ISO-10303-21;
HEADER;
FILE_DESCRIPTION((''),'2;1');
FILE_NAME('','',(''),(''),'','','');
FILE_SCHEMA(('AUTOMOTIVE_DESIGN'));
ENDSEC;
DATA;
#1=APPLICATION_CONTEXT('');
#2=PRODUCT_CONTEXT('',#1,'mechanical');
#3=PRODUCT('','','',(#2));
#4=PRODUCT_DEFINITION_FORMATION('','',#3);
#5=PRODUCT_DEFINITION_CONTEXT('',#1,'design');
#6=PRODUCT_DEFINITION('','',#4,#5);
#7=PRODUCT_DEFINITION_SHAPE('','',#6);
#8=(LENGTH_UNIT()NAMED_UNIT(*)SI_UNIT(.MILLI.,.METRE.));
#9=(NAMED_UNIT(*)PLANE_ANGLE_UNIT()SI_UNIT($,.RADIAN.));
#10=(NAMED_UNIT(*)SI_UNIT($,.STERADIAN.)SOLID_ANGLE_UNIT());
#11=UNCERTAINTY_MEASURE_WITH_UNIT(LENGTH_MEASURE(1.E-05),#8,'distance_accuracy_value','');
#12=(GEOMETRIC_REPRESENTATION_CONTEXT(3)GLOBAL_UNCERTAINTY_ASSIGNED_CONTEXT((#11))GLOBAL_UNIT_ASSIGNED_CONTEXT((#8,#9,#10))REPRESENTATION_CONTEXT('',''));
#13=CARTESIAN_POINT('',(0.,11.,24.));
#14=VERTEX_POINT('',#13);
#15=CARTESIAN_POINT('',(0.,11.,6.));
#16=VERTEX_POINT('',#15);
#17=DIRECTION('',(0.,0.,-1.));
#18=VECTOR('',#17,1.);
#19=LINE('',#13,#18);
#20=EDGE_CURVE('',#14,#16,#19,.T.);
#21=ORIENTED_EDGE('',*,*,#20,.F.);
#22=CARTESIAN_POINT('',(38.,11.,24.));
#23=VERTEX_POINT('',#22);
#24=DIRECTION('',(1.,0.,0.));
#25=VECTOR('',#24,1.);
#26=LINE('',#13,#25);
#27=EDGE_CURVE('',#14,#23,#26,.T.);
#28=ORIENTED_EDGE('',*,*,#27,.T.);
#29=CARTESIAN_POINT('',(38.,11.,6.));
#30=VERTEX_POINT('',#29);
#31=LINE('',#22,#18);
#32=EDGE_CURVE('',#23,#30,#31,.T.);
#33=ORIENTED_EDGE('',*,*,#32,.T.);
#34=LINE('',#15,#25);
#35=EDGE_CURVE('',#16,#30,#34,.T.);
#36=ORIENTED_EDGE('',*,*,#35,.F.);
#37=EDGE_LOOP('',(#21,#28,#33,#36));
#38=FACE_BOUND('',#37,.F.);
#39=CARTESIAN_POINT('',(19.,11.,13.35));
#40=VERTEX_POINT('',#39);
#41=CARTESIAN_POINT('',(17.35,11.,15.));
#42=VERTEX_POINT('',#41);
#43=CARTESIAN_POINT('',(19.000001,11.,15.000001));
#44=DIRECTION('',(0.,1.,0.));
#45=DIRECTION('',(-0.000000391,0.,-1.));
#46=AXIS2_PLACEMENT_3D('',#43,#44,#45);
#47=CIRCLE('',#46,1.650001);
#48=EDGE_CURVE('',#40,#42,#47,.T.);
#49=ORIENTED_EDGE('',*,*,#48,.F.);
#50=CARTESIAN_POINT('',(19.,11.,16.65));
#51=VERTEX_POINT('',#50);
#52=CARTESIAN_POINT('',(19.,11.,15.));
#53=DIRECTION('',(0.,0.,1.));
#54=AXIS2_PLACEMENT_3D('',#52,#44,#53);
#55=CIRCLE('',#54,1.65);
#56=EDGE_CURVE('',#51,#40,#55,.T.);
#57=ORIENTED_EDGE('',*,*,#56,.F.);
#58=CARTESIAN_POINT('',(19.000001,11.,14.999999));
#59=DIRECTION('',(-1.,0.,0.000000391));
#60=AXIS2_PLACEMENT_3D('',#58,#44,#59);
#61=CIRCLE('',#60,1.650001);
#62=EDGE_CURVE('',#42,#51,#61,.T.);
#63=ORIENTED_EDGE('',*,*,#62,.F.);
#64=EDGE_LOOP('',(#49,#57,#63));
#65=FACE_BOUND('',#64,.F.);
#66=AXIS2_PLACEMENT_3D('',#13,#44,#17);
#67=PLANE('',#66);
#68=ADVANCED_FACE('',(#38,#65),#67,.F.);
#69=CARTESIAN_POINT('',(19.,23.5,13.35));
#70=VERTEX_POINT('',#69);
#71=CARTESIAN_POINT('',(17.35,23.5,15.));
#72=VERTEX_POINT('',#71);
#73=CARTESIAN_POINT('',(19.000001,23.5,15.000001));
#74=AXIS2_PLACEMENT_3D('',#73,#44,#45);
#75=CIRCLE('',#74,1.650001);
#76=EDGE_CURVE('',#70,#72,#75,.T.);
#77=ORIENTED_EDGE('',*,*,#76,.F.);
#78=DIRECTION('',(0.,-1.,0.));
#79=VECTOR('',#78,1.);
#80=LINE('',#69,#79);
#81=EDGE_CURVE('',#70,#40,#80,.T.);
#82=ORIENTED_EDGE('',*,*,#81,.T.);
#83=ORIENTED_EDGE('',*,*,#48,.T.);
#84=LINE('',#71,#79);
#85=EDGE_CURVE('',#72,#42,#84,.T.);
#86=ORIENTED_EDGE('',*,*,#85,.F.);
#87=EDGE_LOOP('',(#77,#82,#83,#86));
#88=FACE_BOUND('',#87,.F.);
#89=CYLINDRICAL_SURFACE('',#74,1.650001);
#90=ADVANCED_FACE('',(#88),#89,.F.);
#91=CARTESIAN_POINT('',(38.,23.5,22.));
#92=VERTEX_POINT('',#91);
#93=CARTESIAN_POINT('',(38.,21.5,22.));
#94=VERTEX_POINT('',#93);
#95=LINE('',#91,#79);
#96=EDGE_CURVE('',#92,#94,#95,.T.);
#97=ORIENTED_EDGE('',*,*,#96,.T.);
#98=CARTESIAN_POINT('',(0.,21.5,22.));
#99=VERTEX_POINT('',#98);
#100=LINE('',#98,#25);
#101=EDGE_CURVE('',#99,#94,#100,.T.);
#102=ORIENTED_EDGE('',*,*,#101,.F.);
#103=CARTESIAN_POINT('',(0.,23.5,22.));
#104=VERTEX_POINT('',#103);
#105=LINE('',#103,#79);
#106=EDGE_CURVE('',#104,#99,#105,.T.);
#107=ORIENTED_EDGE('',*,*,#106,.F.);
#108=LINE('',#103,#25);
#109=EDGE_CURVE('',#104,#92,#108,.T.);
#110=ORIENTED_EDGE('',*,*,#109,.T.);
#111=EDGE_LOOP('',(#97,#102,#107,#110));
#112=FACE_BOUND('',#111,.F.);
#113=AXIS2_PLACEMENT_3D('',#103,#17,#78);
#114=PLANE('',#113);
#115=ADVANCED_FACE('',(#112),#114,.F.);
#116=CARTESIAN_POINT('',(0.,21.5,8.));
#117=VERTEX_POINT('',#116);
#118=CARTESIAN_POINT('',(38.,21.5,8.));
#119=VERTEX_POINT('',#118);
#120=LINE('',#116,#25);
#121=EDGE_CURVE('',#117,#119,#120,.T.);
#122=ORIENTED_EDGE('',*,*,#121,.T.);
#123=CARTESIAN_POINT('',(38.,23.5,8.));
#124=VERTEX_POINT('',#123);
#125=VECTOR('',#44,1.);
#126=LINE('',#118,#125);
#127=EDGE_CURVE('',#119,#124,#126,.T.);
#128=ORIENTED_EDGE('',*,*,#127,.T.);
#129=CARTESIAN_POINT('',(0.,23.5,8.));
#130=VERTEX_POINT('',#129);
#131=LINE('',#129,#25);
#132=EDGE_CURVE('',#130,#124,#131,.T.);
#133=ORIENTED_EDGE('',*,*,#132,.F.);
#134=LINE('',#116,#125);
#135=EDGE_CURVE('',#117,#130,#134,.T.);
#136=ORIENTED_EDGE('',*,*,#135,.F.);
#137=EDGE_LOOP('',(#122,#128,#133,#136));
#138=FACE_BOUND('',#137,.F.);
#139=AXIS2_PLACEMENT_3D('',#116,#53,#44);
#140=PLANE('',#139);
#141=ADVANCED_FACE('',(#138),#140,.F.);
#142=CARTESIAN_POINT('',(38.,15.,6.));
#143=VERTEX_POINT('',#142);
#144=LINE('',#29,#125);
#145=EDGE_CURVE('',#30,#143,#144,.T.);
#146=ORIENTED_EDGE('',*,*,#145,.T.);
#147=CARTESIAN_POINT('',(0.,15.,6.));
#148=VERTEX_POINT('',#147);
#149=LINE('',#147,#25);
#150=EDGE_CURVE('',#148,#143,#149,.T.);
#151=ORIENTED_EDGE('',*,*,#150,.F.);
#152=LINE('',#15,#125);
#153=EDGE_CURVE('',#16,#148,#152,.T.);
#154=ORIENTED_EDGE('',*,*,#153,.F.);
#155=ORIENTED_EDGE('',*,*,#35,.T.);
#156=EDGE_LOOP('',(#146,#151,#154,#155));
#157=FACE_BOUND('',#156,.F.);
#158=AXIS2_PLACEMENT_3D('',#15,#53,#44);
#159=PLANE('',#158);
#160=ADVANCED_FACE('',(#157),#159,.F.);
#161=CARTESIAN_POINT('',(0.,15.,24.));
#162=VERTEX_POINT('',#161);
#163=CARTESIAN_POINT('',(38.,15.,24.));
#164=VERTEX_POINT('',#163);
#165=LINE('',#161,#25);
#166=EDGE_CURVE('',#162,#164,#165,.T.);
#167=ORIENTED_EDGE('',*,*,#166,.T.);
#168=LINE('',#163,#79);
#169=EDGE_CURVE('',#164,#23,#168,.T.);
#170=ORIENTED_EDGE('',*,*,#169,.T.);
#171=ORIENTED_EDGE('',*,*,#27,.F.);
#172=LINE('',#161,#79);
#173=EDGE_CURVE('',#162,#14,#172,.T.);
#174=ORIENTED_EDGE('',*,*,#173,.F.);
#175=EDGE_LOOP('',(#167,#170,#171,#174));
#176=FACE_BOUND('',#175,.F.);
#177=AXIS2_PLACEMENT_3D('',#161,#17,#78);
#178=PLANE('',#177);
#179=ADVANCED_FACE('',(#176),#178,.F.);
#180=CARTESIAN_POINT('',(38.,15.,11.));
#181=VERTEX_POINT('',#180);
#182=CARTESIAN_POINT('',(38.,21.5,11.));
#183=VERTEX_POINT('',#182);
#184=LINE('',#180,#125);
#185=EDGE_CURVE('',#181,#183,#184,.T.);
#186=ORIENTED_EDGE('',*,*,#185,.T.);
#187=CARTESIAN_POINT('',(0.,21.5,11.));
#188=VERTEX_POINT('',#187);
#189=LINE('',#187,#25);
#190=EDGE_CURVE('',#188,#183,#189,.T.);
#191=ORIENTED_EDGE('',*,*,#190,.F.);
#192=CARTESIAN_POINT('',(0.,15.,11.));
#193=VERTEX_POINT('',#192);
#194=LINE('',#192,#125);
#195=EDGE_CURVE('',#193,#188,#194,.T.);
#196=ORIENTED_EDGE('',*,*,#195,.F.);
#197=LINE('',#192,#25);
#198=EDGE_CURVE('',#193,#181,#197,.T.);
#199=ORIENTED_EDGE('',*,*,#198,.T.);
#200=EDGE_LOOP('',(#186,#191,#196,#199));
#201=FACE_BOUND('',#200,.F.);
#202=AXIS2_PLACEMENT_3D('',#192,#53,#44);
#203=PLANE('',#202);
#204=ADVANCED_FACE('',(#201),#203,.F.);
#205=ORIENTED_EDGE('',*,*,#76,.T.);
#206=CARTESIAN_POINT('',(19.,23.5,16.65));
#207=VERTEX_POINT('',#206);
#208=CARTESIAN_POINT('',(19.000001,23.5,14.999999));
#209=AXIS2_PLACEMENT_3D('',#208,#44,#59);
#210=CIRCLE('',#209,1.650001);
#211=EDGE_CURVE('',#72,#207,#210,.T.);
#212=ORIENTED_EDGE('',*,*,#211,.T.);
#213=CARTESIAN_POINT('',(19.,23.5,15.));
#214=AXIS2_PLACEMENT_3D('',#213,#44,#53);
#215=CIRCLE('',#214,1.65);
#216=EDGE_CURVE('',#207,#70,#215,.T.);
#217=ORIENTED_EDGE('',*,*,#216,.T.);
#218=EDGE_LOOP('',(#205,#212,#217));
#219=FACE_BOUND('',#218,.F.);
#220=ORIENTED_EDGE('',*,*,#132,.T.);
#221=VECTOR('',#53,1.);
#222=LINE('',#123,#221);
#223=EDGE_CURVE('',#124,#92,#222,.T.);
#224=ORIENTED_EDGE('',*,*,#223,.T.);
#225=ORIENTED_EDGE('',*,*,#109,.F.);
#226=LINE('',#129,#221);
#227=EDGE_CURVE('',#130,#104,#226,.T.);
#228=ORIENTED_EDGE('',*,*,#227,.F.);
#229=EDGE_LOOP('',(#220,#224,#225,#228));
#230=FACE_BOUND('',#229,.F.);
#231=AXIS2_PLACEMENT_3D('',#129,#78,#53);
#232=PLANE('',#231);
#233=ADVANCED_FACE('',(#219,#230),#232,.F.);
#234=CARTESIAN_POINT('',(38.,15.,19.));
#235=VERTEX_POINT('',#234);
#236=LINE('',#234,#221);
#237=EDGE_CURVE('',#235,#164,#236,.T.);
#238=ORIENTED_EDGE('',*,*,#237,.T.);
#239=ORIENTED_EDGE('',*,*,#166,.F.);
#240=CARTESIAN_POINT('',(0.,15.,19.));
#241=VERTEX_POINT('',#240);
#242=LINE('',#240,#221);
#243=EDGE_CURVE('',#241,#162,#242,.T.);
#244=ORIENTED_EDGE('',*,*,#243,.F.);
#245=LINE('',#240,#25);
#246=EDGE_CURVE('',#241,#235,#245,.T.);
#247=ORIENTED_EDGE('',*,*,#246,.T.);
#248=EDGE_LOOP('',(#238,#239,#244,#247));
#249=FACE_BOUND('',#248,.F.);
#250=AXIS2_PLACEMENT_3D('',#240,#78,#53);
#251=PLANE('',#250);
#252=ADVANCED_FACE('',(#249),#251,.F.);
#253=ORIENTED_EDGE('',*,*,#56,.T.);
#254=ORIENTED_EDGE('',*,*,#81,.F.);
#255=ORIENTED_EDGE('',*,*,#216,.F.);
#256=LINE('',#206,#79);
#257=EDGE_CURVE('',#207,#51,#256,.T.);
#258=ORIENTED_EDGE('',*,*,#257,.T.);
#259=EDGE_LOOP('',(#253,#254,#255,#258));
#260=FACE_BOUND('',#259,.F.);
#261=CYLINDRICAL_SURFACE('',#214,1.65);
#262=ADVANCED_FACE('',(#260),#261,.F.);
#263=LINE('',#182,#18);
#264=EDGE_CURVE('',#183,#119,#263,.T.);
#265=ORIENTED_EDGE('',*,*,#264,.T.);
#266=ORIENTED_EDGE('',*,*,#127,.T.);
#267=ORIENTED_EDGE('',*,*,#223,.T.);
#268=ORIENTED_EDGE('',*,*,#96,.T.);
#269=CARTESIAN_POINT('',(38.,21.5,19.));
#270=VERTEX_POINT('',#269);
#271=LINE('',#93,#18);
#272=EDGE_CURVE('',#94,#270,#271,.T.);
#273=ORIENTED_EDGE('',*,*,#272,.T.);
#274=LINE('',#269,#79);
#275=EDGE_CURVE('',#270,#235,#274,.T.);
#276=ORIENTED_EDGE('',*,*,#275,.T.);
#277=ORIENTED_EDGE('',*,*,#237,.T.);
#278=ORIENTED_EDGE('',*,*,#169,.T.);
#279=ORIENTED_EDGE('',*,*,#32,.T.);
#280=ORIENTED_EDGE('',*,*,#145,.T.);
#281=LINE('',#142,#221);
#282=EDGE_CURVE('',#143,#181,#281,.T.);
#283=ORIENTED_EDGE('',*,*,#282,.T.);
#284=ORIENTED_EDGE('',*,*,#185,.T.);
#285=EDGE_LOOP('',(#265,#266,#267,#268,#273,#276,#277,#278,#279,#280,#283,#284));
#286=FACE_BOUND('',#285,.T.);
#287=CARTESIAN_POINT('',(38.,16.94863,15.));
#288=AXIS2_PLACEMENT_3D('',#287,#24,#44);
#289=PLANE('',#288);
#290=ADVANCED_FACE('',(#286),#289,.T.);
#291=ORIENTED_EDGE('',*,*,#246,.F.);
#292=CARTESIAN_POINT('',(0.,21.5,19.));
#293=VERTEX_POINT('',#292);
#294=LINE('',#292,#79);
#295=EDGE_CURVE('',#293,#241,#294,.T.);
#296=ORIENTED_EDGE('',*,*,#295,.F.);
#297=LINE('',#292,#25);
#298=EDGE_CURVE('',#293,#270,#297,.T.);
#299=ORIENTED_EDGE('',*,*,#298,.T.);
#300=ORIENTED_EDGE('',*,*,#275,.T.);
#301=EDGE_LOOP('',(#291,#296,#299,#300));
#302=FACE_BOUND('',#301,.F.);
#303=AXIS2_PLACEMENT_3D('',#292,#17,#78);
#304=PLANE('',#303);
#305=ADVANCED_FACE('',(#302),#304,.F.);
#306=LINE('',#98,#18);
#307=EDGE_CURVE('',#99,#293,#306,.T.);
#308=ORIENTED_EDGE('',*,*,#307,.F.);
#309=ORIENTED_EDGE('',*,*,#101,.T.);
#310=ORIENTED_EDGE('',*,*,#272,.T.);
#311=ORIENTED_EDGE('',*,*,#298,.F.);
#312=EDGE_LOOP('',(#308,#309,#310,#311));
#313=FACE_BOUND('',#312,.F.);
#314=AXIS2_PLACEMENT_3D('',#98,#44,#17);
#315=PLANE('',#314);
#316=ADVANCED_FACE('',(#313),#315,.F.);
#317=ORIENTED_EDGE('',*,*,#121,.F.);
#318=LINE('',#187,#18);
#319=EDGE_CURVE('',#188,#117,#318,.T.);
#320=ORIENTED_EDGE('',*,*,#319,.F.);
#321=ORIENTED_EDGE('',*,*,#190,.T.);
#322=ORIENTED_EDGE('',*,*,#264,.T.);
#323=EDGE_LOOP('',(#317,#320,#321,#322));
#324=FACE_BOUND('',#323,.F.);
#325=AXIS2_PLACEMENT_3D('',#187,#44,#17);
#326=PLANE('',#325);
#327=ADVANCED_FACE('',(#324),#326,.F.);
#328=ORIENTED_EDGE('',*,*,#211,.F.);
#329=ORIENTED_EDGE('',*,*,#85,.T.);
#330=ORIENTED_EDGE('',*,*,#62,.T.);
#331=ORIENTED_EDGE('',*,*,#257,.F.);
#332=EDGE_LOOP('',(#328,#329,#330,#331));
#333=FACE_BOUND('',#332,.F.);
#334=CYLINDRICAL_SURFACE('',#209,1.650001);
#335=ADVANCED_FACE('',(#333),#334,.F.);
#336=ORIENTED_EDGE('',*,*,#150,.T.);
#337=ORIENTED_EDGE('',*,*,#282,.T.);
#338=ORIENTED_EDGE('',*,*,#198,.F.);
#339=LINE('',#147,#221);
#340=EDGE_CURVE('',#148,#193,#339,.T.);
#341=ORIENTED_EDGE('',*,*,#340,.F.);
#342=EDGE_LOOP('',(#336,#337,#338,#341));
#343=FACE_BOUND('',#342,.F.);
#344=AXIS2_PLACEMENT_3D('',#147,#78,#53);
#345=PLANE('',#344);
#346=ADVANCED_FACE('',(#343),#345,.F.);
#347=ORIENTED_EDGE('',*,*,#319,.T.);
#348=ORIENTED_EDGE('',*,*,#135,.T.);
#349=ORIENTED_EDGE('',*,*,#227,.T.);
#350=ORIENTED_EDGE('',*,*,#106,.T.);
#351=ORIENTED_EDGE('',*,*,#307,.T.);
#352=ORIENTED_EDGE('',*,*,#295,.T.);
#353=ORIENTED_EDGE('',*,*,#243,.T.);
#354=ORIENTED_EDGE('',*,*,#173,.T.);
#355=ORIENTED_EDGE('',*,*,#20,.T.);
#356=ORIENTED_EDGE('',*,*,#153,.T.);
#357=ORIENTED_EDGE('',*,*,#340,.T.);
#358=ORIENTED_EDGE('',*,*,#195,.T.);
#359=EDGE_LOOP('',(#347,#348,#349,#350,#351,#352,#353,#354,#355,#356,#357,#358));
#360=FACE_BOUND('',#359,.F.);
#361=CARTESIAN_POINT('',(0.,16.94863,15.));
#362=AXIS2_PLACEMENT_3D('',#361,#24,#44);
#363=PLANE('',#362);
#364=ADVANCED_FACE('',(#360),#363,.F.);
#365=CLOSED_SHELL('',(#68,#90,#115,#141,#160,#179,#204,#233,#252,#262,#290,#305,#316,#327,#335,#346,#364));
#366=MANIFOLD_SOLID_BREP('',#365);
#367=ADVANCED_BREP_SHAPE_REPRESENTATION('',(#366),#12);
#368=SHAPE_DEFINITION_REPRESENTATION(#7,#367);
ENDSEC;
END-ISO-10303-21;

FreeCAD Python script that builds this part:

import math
import FreeCAD as App
import Part
import Sketcher
from FreeCAD import Vector
Q = App.Units.Quantity

doc = App.newDocument("Part")
params = doc.addObject("Spreadsheet::Sheet", "Params")
for row, (alias, value) in enumerate([
    ("sketch1_width", "4 mm"),
    ("sketch1_width2", "2 mm"),
    ("sketch1_height", "5 mm"),
    ("sketch1_height2", "18 mm"),
    ("sketch1_height3", "3 mm"),
    ("pad1_length", "38 mm"),
    ("sketch2_radius", "1.650001 mm"),
    ("pocket1_length", "25 mm"),
], start=1):
    params.set(f"A{row}", alias)
    params.set(f"B{row}", "=" + value)
    params.setAlias(f"B{row}", alias)

body = doc.addObject("PartDesign::Body", "Body")

sketch1 = body.newObject("Sketcher::SketchObject", "Sketch")
sketch1.AttachmentSupport = (doc.getObject("YZ_Plane"), [""])
sketch1.MapMode = "FlatFace"
sketch1.addGeometry([
    Part.LineSegment(Vector(15, 19, 0), Vector(15, 24, 0)),
    Part.LineSegment(Vector(15, 24, 0), Vector(11, 24, 0)),
    Part.LineSegment(Vector(11, 24, 0), Vector(11, 6, 0)),
    Part.LineSegment(Vector(11, 6, 0), Vector(15, 6, 0)),
    Part.LineSegment(Vector(15, 6, 0), Vector(15, 11, 0)),
    Part.LineSegment(Vector(15, 11, 0), Vector(21.5, 11, 0)),
    Part.LineSegment(Vector(21.5, 11, 0), Vector(21.5, 8, 0)),
    Part.LineSegment(Vector(21.5, 8, 0), Vector(23.5, 8, 0)),
    Part.LineSegment(Vector(23.5, 8, 0), Vector(23.5, 22, 0)),
    Part.LineSegment(Vector(23.5, 22, 0), Vector(21.5, 22, 0)),
    Part.LineSegment(Vector(21.5, 22, 0), Vector(21.5, 19, 0)),
    Part.LineSegment(Vector(21.5, 19, 0), Vector(15, 19, 0)),
], False)
sketch1.addConstraint([
    Sketcher.Constraint("Coincident", 0, 2, 1, 1),
    Sketcher.Constraint("Coincident", 1, 2, 2, 1),
    Sketcher.Constraint("Coincident", 2, 2, 3, 1),
    Sketcher.Constraint("Coincident", 3, 2, 4, 1),
    Sketcher.Constraint("Coincident", 4, 2, 5, 1),
    Sketcher.Constraint("Coincident", 5, 2, 6, 1),
    Sketcher.Constraint("Coincident", 6, 2, 7, 1),
    Sketcher.Constraint("Coincident", 7, 2, 8, 1),
    Sketcher.Constraint("Coincident", 8, 2, 9, 1),
    Sketcher.Constraint("Coincident", 9, 2, 10, 1),
    Sketcher.Constraint("Coincident", 10, 2, 11, 1),
    Sketcher.Constraint("Coincident", 11, 2, 0, 1),
    Sketcher.Constraint("Vertical", 0),
    Sketcher.Constraint("Horizontal", 1),
    Sketcher.Constraint("Vertical", 2),
    Sketcher.Constraint("Horizontal", 3),
    Sketcher.Constraint("Vertical", 4),
    Sketcher.Constraint("Horizontal", 5),
    Sketcher.Constraint("Vertical", 6),
    Sketcher.Constraint("Horizontal", 7),
    Sketcher.Constraint("Vertical", 8),
    Sketcher.Constraint("Horizontal", 9),
    Sketcher.Constraint("Vertical", 10),
    Sketcher.Constraint("Horizontal", 11),
    Sketcher.Constraint("Vertical", 0, 2, 3, 2),
    Sketcher.Constraint("Vertical", 6, 2, 9, 2),
    Sketcher.Constraint("Equal", 0, 4),
    Sketcher.Constraint("Equal", 6, 10),
    Sketcher.Constraint("DistanceX", 1, 2, 1, 1, Q("4 mm")),
    Sketcher.Constraint("DistanceX", 7, 1, 7, 2, Q("2 mm")),
    Sketcher.Constraint("DistanceY", 0, 1, 0, 2, Q("5 mm")),
    Sketcher.Constraint("DistanceY", 2, 2, 2, 1, Q("18 mm")),
    Sketcher.Constraint("DistanceY", 6, 2, 6, 1, Q("3 mm")),
    Sketcher.Constraint("DistanceX", 5, 1, 5, 2, Q("6.5 mm")),
    Sketcher.Constraint("DistanceX", -1, 1, 0, 2, Q("15 mm")),
    Sketcher.Constraint("DistanceY", -1, 1, 0, 2, Q("24 mm")),
])
sketch1.setExpression("Constraints[28]", "Params.sketch1_width")
sketch1.setExpression("Constraints[29]", "Params.sketch1_width2")
sketch1.setExpression("Constraints[30]", "Params.sketch1_height")
sketch1.setExpression("Constraints[31]", "Params.sketch1_height2")
sketch1.setExpression("Constraints[32]", "Params.sketch1_height3")
pad1 = body.newObject("PartDesign::Pad", "Pad")
pad1.Profile = sketch1
pad1.setExpression("Length", "Params.pad1_length")

sketch2 = body.newObject("Sketcher::SketchObject", "Sketch001")
sketch2.AttachmentSupport = (doc.getObject("XZ_Plane"), [""])
sketch2.MapMode = "FlatFace"
sketch2.AttachmentOffset = App.Placement(Vector(0, 0, -23.5), App.Rotation())
sketch2.addGeometry([
    Part.ArcOfCircle(Part.Circle(Vector(19.000001, 14.999999, 0), Vector(0, 0, 1), 1.650001), math.radians(90.000022), math.radians(179.999978)),
    Part.ArcOfCircle(Part.Circle(Vector(19, 15, 0), Vector(0, 0, 1), 1.65), math.radians(-90), math.radians(90)),
    Part.ArcOfCircle(Part.Circle(Vector(19.000001, 15.000001, 0), Vector(0, 0, 1), 1.650001), math.radians(-179.999978), math.radians(-90.000022)),
], False)
sketch2.addConstraint([
    Sketcher.Constraint("Tangent", 0, 1, 1, 2),
    Sketcher.Constraint("Tangent", 1, 1, 2, 2),
    Sketcher.Constraint("Tangent", 2, 1, 0, 2),
    Sketcher.Constraint("Horizontal", 1, 3, 2, 1),
    Sketcher.Constraint("Vertical", 2, 3, 0, 1),
    Sketcher.Constraint("Vertical", 0, 1, 1, 1),
    Sketcher.Constraint("Radius", 0, Q("1.650001 mm")),
    Sketcher.Constraint("DistanceX", -1, 1, 0, 3, Q("19.000001 mm")),
    Sketcher.Constraint("DistanceY", -1, 1, 0, 3, Q("14.999999 mm")),
])
sketch2.setExpression("Constraints[6]", "Params.sketch2_radius")
pocket1 = body.newObject("PartDesign::Pocket", "Pocket")
pocket1.Profile = sketch2
pocket1.setExpression("Length", "Params.pocket1_length")
pocket1.Reversed = True

doc.recompute()
